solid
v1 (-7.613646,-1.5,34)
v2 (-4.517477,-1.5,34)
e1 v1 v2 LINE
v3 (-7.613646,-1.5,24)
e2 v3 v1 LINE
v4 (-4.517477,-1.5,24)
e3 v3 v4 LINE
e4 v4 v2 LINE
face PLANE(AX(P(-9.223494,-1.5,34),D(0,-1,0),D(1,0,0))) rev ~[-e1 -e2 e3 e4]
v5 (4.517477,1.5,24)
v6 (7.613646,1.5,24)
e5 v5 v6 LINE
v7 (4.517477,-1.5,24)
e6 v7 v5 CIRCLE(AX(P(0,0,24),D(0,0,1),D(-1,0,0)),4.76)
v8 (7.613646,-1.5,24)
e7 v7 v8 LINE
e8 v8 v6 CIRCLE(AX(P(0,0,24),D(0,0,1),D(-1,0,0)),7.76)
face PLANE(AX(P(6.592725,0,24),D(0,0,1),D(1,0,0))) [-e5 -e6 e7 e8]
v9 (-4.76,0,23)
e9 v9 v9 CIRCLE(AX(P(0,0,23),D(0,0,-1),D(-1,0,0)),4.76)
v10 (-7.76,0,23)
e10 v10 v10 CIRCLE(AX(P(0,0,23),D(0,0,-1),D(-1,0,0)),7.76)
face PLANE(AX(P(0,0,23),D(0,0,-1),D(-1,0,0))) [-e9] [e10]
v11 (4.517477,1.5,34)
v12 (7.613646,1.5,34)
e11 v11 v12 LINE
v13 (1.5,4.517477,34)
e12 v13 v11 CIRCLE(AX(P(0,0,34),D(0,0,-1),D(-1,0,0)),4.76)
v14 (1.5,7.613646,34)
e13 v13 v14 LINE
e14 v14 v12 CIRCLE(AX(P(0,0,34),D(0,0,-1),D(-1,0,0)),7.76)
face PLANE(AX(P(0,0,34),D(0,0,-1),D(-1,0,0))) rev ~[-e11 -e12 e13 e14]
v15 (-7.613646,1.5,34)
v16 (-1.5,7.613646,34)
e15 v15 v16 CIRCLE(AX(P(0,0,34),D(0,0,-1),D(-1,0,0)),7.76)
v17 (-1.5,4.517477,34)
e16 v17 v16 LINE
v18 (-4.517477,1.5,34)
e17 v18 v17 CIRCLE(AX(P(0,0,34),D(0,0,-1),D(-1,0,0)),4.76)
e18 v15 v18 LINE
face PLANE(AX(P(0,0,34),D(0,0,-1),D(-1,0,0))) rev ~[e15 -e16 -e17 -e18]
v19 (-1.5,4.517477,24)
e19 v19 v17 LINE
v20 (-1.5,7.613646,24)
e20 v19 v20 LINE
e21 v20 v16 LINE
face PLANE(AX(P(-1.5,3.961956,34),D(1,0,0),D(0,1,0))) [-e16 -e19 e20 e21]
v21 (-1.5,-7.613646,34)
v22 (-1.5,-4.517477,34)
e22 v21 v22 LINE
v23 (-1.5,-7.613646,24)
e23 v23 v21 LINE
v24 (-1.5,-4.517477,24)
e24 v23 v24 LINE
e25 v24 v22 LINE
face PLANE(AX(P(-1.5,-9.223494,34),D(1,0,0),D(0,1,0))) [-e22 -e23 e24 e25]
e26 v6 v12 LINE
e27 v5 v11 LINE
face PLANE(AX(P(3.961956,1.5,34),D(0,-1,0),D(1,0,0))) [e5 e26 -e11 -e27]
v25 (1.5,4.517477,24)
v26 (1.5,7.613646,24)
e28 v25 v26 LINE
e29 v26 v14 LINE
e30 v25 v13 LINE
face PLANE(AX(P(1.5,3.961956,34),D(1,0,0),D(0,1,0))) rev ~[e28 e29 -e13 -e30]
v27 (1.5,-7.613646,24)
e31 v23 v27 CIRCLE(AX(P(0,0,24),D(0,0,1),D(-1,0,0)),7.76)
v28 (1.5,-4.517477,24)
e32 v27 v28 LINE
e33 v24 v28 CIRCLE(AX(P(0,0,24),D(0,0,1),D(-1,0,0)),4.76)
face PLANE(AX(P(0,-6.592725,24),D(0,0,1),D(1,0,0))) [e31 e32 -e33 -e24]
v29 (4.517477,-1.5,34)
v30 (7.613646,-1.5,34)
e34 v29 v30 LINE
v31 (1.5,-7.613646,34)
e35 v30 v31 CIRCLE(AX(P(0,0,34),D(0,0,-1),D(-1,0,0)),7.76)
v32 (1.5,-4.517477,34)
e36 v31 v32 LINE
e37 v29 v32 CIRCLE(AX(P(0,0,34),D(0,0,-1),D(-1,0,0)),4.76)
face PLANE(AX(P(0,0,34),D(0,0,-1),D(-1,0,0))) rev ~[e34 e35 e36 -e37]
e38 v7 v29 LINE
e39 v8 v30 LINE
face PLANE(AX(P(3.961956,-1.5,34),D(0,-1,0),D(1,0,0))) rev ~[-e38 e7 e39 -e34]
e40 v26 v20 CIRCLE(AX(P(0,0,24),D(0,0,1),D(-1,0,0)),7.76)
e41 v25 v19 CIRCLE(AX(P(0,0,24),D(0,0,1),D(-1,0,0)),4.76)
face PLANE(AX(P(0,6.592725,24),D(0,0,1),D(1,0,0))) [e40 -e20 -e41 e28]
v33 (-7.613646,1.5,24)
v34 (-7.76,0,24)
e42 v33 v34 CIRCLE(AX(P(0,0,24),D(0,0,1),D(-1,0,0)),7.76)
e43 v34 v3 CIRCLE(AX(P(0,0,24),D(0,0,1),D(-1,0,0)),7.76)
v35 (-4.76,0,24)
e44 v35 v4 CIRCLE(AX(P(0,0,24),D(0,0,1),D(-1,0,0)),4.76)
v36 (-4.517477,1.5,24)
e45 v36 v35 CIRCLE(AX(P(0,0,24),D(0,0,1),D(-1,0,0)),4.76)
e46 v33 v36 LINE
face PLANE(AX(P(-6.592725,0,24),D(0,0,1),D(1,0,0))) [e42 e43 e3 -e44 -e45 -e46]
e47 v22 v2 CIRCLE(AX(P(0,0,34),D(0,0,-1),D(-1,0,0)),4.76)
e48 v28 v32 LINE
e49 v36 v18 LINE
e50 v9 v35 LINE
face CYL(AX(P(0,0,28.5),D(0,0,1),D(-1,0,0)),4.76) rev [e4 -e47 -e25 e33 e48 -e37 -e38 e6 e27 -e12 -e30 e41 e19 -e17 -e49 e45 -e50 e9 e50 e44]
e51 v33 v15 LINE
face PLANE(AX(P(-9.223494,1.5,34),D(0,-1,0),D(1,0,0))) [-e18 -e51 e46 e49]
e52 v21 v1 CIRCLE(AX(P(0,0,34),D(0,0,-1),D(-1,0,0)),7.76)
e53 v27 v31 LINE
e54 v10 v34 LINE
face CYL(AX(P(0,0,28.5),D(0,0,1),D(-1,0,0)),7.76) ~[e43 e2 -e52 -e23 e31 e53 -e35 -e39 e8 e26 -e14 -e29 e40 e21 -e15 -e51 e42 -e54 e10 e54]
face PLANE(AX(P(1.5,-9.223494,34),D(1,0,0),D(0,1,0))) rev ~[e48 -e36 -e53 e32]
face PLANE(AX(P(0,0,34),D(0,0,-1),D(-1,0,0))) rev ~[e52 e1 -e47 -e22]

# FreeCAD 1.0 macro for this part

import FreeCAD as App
import Part
import Sketcher
from FreeCAD import Vector

doc = App.newDocument("Part")
body = doc.addObject("PartDesign::Body", "Body")

sketch1 = body.newObject("Sketcher::SketchObject", "Sketch")
sketch1.AttachmentSupport = (doc.getObject("XZ_Plane"), [""])
sketch1.MapMode = "FlatFace"
sketch1.addGeometry(Part.LineSegment(Vector(-7.8, 34, 0), Vector(-7.8, 23, 0)), False)
sketch1.addGeometry(Part.LineSegment(Vector(-7.8, 23, 0), Vector(-4.8, 23, 0)), False)
sketch1.addGeometry(Part.LineSegment(Vector(-4.8, 23, 0), Vector(-4.8, 34, 0)), False)
sketch1.addGeometry(Part.LineSegment(Vector(-4.8, 34, 0), Vector(-7.8, 34, 0)), False)
sketch1.addConstraint(Sketcher.Constraint("Coincident", 0, 2, 1, 1))
sketch1.addConstraint(Sketcher.Constraint("Coincident", 1, 2, 2, 1))
sketch1.addConstraint(Sketcher.Constraint("Coincident", 2, 2, 3, 1))
sketch1.addConstraint(Sketcher.Constraint("Coincident", 3, 2, 0, 1))
sketch1.addConstraint(Sketcher.Constraint("Vertical", 0))
sketch1.addConstraint(Sketcher.Constraint("Horizontal", 1))
sketch1.addConstraint(Sketcher.Constraint("Vertical", 2))
sketch1.addConstraint(Sketcher.Constraint("Horizontal", 3))
sketch1.addConstraint(Sketcher.Constraint("DistanceX", 1, 1, 1, 2, 3.0))
sketch1.addConstraint(Sketcher.Constraint("DistanceY", 0, 2, 0, 1, 11.0))
sketch1.addConstraint(Sketcher.Constraint("DistanceY", -1, 1, 0, 2, 23.0))
sketch1.addConstraint(Sketcher.Constraint("DistanceX", 0, 2, -1, 1, 7.76))
revolution = body.newObject("PartDesign::Revolution", "Revolution")
revolution.Profile = sketch1
revolution.ReferenceAxis = (sketch1, ["V_Axis"])
revolution.Angle = 360

sketch2 = body.newObject("Sketcher::SketchObject", "Sketch001")
sketch2.AttachmentSupport = (doc.getObject("XY_Plane"), [""])
sketch2.MapMode = "FlatFace"
sketch2.AttachmentOffset = App.Placement(Vector(0, 0, 34), App.Rotation())
sketch2.addGeometry(Part.LineSegment(Vector(-1.5, 9.2, 0), Vector(-1.5, 4, 0)), False)
sketch2.addGeometry(Part.LineSegment(Vector(-1.5, 4, 0), Vector(1.5, 4, 0)), False)
sketch2.addGeometry(Part.LineSegment(Vector(1.5, 4, 0), Vector(1.5, 9.2, 0)), False)
sketch2.addGeometry(Part.LineSegment(Vector(1.5, 9.2, 0), Vector(-1.5, 9.2, 0)), False)
sketch2.addGeometry(Part.LineSegment(Vector(-9.2, 1.5, 0), Vector(-9.2, -1.5, 0)), False)
sketch2.addGeometry(Part.LineSegment(Vector(-9.2, -1.5, 0), Vector(-4, -1.5, 0)), False)
sketch2.addGeometry(Part.LineSegment(Vector(-4, -1.5, 0), Vector(-4, 1.5, 0)), False)
sketch2.addGeometry(Part.LineSegment(Vector(-4, 1.5, 0), Vector(-9.2, 1.5, 0)), False)
sketch2.addGeometry(Part.LineSegment(Vector(-1.5, -4, 0), Vector(-1.5, -9.2, 0)), False)
sketch2.addGeometry(Part.LineSegment(Vector(-1.5, -9.2, 0), Vector(1.5, -9.2, 0)), False)
sketch2.addGeometry(Part.LineSegment(Vector(1.5, -9.2, 0), Vector(1.5, -4, 0)), False)
sketch2.addGeometry(Part.LineSegment(Vector(1.5, -4, 0), Vector(-1.5, -4, 0)), False)
sketch2.addGeometry(Part.LineSegment(Vector(4, 1.5, 0), Vector(4, -1.5, 0)), False)
sketch2.addGeometry(Part.LineSegment(Vector(4, -1.5, 0), Vector(9.2, -1.5, 0)), False)
sketch2.addGeometry(Part.LineSegment(Vector(9.2, -1.5, 0), Vector(9.2, 1.5, 0)), False)
sketch2.addGeometry(Part.LineSegment(Vector(9.2, 1.5, 0), Vector(4, 1.5, 0)), False)
sketch2.addConstraint(Sketcher.Constraint("Coincident", 0, 2, 1, 1))
sketch2.addConstraint(Sketcher.Constraint("Coincident", 1, 2, 2, 1))
sketch2.addConstraint(Sketcher.Constraint("Coincident", 2, 2, 3, 1))
sketch2.addConstraint(Sketcher.Constraint("Coincident", 3, 2, 0, 1))
sketch2.addConstraint(Sketcher.Constraint("Coincident", 4, 2, 5, 1))
sketch2.addConstraint(Sketcher.Constraint("Coincident", 5, 2, 6, 1))
sketch2.addConstraint(Sketcher.Constraint("Coincident", 6, 2, 7, 1))
sketch2.addConstraint(Sketcher.Constraint("Coincident", 7, 2, 4, 1))
sketch2.addConstraint(Sketcher.Constraint("Coincident", 8, 2, 9, 1))
sketch2.addConstraint(Sketcher.Constraint("Coincident", 9, 2, 10, 1))
sketch2.addConstraint(Sketcher.Constraint("Coincident", 10, 2, 11, 1))
sketch2.addConstraint(Sketcher.Constraint("Coincident", 11, 2, 8, 1))
sketch2.addConstraint(Sketcher.Constraint("Coincident", 12, 2, 13, 1))
sketch2.addConstraint(Sketcher.Constraint("Coincident", 13, 2, 14, 1))
sketch2.addConstraint(Sketcher.Constraint("Coincident", 14, 2, 15, 1))
sketch2.addConstraint(Sketcher.Constraint("Coincident", 15, 2, 12, 1))
sketch2.addConstraint(Sketcher.Constraint("Vertical", 0))
sketch2.addConstraint(Sketcher.Constraint("Horizontal", 1))
sketch2.addConstraint(Sketcher.Constraint("Vertical", 2))
sketch2.addConstraint(Sketcher.Constraint("Horizontal", 3))
sketch2.addConstraint(Sketcher.Constraint("Vertical", 4))
sketch2.addConstraint(Sketcher.Constraint("Horizontal", 5))
sketch2.addConstraint(Sketcher.Constraint("Vertical", 6))
sketch2.addConstraint(Sketcher.Constraint("Horizontal", 7))
sketch2.addConstraint(Sketcher.Constraint("Vertical", 8))
sketch2.addConstraint(Sketcher.Constraint("Horizontal", 9))
sketch2.addConstraint(Sketcher.Constraint("Vertical", 10))
sketch2.addConstraint(Sketcher.Constraint("Horizontal", 11))
sketch2.addConstraint(Sketcher.Constraint("Vertical", 12))
sketch2.addConstraint(Sketcher.Constraint("Horizontal", 13))
sketch2.addConstraint(Sketcher.Constraint("Vertical", 14))
sketch2.addConstraint(Sketcher.Constraint("Horizontal", 15))
sketch2.addConstraint(Sketcher.Constraint("Symmetric", 2, 2, 8, 2, -1, 1))
sketch2.addConstraint(Sketcher.Constraint("Symmetric", 0, 2, 10, 2, -1, 1))
sketch2.addConstraint(Sketcher.Constraint("Symmetric", 6, 2, 12, 2, -1, 1))
sketch2.addConstraint(Sketcher.Constraint("Symmetric", 4, 2, 14, 2, -1, 1))
sketch2.addConstraint(Sketcher.Constraint("Horizontal", 5, 2, 12, 2))
sketch2.addConstraint(Sketcher.Constraint("Vertical", 3, 2, 8, 2))
sketch2.addConstraint(Sketcher.Constraint("Equal", 15, 0))
sketch2.addConstraint(Sketcher.Constraint("Equal", 11, 4))
sketch2.addConstraint(Sketcher.Constraint("DistanceX", 1, 1, 1, 2, 3.0))
sketch2.addConstraint(Sketcher.Constraint("DistanceX", 5, 1, 5, 2, 5.261537))
sketch2.addConstraint(Sketcher.Constraint("DistanceY", 8, 2, 0, 2, 13.18545))
sketch2.addConstraint(Sketcher.Constraint("DistanceX", 4, 2, -1, 1, 9.223494))
pocket1 = body.newObject("PartDesign::Pocket", "Pocket")
pocket1.Profile = sketch2
pocket1.Length = 10

doc.recompute()
